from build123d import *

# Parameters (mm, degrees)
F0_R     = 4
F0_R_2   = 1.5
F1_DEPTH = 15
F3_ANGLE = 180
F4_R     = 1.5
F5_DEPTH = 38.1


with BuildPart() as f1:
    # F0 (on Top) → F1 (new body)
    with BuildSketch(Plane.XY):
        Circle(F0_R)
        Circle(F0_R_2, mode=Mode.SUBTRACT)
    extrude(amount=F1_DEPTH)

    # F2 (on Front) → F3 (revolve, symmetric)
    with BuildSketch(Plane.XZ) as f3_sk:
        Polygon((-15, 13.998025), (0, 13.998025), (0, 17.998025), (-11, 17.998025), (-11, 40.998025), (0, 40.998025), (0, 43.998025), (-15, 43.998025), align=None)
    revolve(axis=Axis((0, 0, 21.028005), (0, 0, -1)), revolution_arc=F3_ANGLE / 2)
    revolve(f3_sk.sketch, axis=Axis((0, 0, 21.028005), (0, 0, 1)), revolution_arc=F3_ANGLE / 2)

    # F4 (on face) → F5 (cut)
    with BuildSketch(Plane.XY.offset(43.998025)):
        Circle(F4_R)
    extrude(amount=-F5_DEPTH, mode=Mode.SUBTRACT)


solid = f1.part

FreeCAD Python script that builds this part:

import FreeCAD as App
import Part
import Sketcher

V = App.Vector

doc = App.newDocument("Part")
params = doc.addObject("Spreadsheet::Sheet", "Params")
for row, (alias, value) in enumerate([
    ("sketch1_diameter", "8 mm"),
    ("sketch1_diameter2", "3 mm"),
    ("pad1_length", "15 mm"),
    ("sketch2_width", "15 mm"),
    ("sketch2_width2", "11 mm"),
    ("sketch2_height", "4 mm"),
    ("sketch2_height2", "23 mm"),
    ("sketch2_height3", "3 mm"),
    ("revolution_angle", "90 deg"),
    ("sketch3_width", "15 mm"),
    ("sketch3_width2", "11 mm"),
    ("sketch3_height", "4 mm"),
    ("sketch3_height2", "23 mm"),
    ("sketch3_height3", "3 mm"),
    ("revolution2_angle", "90 deg"),
    ("sketch4_diameter", "3 mm"),
    ("pocket1_length", "38.1 mm"),
], start=1):
    params.set(f"A{row}", alias)
    params.set(f"B{row}", "=" + value)
    params.setAlias(f"B{row}", alias)

body = doc.addObject("PartDesign::Body", "Body")

sketch1 = doc.addObject("Sketcher::SketchObject", "Sketch")
body.addObject(sketch1)
sketch1.AttachmentSupport = (doc.XY_Plane, [""])
sketch1.MapMode = "FlatFace"
sketch1.addGeometry(Part.Circle(V(0, 0, 0), V(0, 0, 1), 4), False)
sketch1.addGeometry(Part.Circle(V(0, 0, 0), V(0, 0, 1), 1.5), False)
sketch1.addConstraint(Sketcher.Constraint("Coincident", 0, 3, -1, 1))
sketch1.addConstraint(Sketcher.Constraint("Coincident", 1, 3, -1, 1))
sketch1.addConstraint(Sketcher.Constraint("Diameter", 0, 8.0))
sketch1.addConstraint(Sketcher.Constraint("Diameter", 1, 3.0))
sketch1.setExpression("Constraints[2]", "Params.sketch1_diameter")
sketch1.setExpression("Constraints[3]", "Params.sketch1_diameter2")
pad1 = doc.addObject("PartDesign::Pad", "Pad")
body.addObject(pad1)
pad1.Profile = sketch1
pad1.setExpression("Length", "Params.pad1_length")

sketch2 = doc.addObject("Sketcher::SketchObject", "Sketch001")
body.addObject(sketch2)
sketch2.AttachmentSupport = (doc.XZ_Plane, [""])
sketch2.MapMode = "FlatFace"
sketch2.addGeometry(Part.LineSegment(V(-15, 14, 0), V(0, 14, 0)), False)
sketch2.addGeometry(Part.LineSegment(V(0, 14, 0), V(0, 18, 0)), False)
sketch2.addGeometry(Part.LineSegment(V(0, 18, 0), V(-11, 18, 0)), False)
sketch2.addGeometry(Part.LineSegment(V(-11, 18, 0), V(-11, 41, 0)), False)
sketch2.addGeometry(Part.LineSegment(V(-11, 41, 0), V(0, 41, 0)), False)
sketch2.addGeometry(Part.LineSegment(V(0, 41, 0), V(0, 44, 0)), False)
sketch2.addGeometry(Part.LineSegment(V(0, 44, 0), V(-15, 44, 0)), False)
sketch2.addGeometry(Part.LineSegment(V(-15, 44, 0), V(-15, 14, 0)), False)
sketch2.addConstraint(Sketcher.Constraint("Coincident", 0, 2, 1, 1))
sketch2.addConstraint(Sketcher.Constraint("Coincident", 1, 2, 2, 1))
sketch2.addConstraint(Sketcher.Constraint("Coincident", 2, 2, 3, 1))
sketch2.addConstraint(Sketcher.Constraint("Coincident", 3, 2, 4, 1))
sketch2.addConstraint(Sketcher.Constraint("Coincident", 4, 2, 5, 1))
sketch2.addConstraint(Sketcher.Constraint("Coincident", 5, 2, 6, 1))
sketch2.addConstraint(Sketcher.Constraint("Coincident", 6, 2, 7, 1))
sketch2.addConstraint(Sketcher.Constraint("Coincident", 7, 2, 0, 1))
sketch2.addConstraint(Sketcher.Constraint("Horizontal", 0))
sketch2.addConstraint(Sketcher.Constraint("Vertical", 1))
sketch2.addConstraint(Sketcher.Constraint("Horizontal", 2))
sketch2.addConstraint(Sketcher.Constraint("Vertical", 3))
sketch2.addConstraint(Sketcher.Constraint("Horizontal", 4))
sketch2.addConstraint(Sketcher.Constraint("Vertical", 5))
sketch2.addConstraint(Sketcher.Constraint("Horizontal", 6))
sketch2.addConstraint(Sketcher.Constraint("Vertical", 7))
sketch2.addConstraint(Sketcher.Constraint("PointOnObject", 0, 2, -2))
sketch2.addConstraint(Sketcher.Constraint("PointOnObject", 4, 2, -2))
sketch2.addConstraint(Sketcher.Constraint("DistanceX", 0, 1, 0, 2, 15.0))
sketch2.addConstraint(Sketcher.Constraint("DistanceX", 2, 2, 2, 1, 11.0))
sketch2.addConstraint(Sketcher.Constraint("DistanceY", 1, 1, 1, 2, 4.0))
sketch2.addConstraint(Sketcher.Constraint("DistanceY", 3, 1, 3, 2, 23.0))
sketch2.addConstraint(Sketcher.Constraint("DistanceY", 5, 1, 5, 2, 3.0))
sketch2.addConstraint(Sketcher.Constraint("DistanceY", -1, 1, 0, 2, 13.998025))
sketch2.setExpression("Constraints[18]", "Params.sketch2_width")
sketch2.setExpression("Constraints[19]", "Params.sketch2_width2")
sketch2.setExpression("Constraints[20]", "Params.sketch2_height")
sketch2.setExpression("Constraints[21]", "Params.sketch2_height2")
sketch2.setExpression("Constraints[22]", "Params.sketch2_height3")
revolution = doc.addObject("PartDesign::Revolution", "Revolution")
body.addObject(revolution)
revolution.Profile = sketch2
revolution.ReferenceAxis = (sketch2, ["V_Axis"])
revolution.setExpression("Angle", "Params.revolution_angle")
revolution.Reversed = True

sketch3 = doc.addObject("Sketcher::SketchObject", "Sketch002")
body.addObject(sketch3)
sketch3.AttachmentSupport = (doc.XZ_Plane, [""])
sketch3.MapMode = "FlatFace"
sketch3.addGeometry(Part.LineSegment(V(-15, 14, 0), V(0, 14, 0)), False)
sketch3.addGeometry(Part.LineSegment(V(0, 14, 0), V(0, 18, 0)), False)
sketch3.addGeometry(Part.LineSegment(V(0, 18, 0), V(-11, 18, 0)), False)
sketch3.addGeometry(Part.LineSegment(V(-11, 18, 0), V(-11, 41, 0)), False)
sketch3.addGeometry(Part.LineSegment(V(-11, 41, 0), V(0, 41, 0)), False)
sketch3.addGeometry(Part.LineSegment(V(0, 41, 0), V(0, 44, 0)), False)
sketch3.addGeometry(Part.LineSegment(V(0, 44, 0), V(-15, 44, 0)), False)
sketch3.addGeometry(Part.LineSegment(V(-15, 44, 0), V(-15, 14, 0)), False)
sketch3.addConstraint(Sketcher.Constraint("Coincident", 0, 2, 1, 1))
sketch3.addConstraint(Sketcher.Constraint("Coincident", 1, 2, 2, 1))
sketch3.addConstraint(Sketcher.Constraint("Coincident", 2, 2, 3, 1))
sketch3.addConstraint(Sketcher.Constraint("Coincident", 3, 2, 4, 1))
sketch3.addConstraint(Sketcher.Constraint("Coincident", 4, 2, 5, 1))
sketch3.addConstraint(Sketcher.Constraint("Coincident", 5, 2, 6, 1))
sketch3.addConstraint(Sketcher.Constraint("Coincident", 6, 2, 7, 1))
sketch3.addConstraint(Sketcher.Constraint("Coincident", 7, 2, 0, 1))
sketch3.addConstraint(Sketcher.Constraint("Horizontal", 0))
sketch3.addConstraint(Sketcher.Constraint("Vertical", 1))
sketch3.addConstraint(Sketcher.Constraint("Horizontal", 2))
sketch3.addConstraint(Sketcher.Constraint("Vertical", 3))
sketch3.addConstraint(Sketcher.Constraint("Horizontal", 4))
sketch3.addConstraint(Sketcher.Constraint("Vertical", 5))
sketch3.addConstraint(Sketcher.Constraint("Horizontal", 6))
sketch3.addConstraint(Sketcher.Constraint("Vertical", 7))
sketch3.addConstraint(Sketcher.Constraint("PointOnObject", 0, 2, -2))
sketch3.addConstraint(Sketcher.Constraint("PointOnObject", 4, 2, -2))
sketch3.addConstraint(Sketcher.Constraint("DistanceX", 0, 1, 0, 2, 15.0))
sketch3.addConstraint(Sketcher.Constraint("DistanceX", 2, 2, 2, 1, 11.0))
sketch3.addConstraint(Sketcher.Constraint("DistanceY", 1, 1, 1, 2, 4.0))
sketch3.addConstraint(Sketcher.Constraint("DistanceY", 3, 1, 3, 2, 23.0))
sketch3.addConstraint(Sketcher.Constraint("DistanceY", 5, 1, 5, 2, 3.0))
sketch3.addConstraint(Sketcher.Constraint("DistanceY", -1, 1, 0, 2, 13.998025))
sketch3.setExpression("Constraints[18]", "Params.sketch3_width")
sketch3.setExpression("Constraints[19]", "Params.sketch3_width2")
sketch3.setExpression("Constraints[20]", "Params.sketch3_height")
sketch3.setExpression("Constraints[21]", "Params.sketch3_height2")
sketch3.setExpression("Constraints[22]", "Params.sketch3_height3")
revolution2 = doc.addObject("PartDesign::Revolution", "Revolution001")
body.addObject(revolution2)
revolution2.Profile = sketch3
revolution2.ReferenceAxis = (sketch3, ["V_Axis"])
revolution2.setExpression("Angle", "Params.revolution2_angle")

sketch4 = doc.addObject("Sketcher::SketchObject", "Sketch003")
body.addObject(sketch4)
sketch4.AttachmentSupport = (doc.XY_Plane, [""])
sketch4.MapMode = "FlatFace"
sketch4.AttachmentOffset = App.Placement(V(0, 0, 43.998025), App.Rotation())
sketch4.addGeometry(Part.Circle(V(0, 0, 0), V(0, 0, 1), 1.5), False)
sketch4.addConstraint(Sketcher.Constraint("Coincident", 0, 3, -1, 1))
sketch4.addConstraint(Sketcher.Constraint("Diameter", 0, 3.0))
sketch4.setExpression("Constraints[1]", "Params.sketch4_diameter")
pocket1 = doc.addObject("PartDesign::Pocket", "Pocket")
body.addObject(pocket1)
pocket1.Profile = sketch4
pocket1.setExpression("Length", "Params.pocket1_length")

doc.recompute()
